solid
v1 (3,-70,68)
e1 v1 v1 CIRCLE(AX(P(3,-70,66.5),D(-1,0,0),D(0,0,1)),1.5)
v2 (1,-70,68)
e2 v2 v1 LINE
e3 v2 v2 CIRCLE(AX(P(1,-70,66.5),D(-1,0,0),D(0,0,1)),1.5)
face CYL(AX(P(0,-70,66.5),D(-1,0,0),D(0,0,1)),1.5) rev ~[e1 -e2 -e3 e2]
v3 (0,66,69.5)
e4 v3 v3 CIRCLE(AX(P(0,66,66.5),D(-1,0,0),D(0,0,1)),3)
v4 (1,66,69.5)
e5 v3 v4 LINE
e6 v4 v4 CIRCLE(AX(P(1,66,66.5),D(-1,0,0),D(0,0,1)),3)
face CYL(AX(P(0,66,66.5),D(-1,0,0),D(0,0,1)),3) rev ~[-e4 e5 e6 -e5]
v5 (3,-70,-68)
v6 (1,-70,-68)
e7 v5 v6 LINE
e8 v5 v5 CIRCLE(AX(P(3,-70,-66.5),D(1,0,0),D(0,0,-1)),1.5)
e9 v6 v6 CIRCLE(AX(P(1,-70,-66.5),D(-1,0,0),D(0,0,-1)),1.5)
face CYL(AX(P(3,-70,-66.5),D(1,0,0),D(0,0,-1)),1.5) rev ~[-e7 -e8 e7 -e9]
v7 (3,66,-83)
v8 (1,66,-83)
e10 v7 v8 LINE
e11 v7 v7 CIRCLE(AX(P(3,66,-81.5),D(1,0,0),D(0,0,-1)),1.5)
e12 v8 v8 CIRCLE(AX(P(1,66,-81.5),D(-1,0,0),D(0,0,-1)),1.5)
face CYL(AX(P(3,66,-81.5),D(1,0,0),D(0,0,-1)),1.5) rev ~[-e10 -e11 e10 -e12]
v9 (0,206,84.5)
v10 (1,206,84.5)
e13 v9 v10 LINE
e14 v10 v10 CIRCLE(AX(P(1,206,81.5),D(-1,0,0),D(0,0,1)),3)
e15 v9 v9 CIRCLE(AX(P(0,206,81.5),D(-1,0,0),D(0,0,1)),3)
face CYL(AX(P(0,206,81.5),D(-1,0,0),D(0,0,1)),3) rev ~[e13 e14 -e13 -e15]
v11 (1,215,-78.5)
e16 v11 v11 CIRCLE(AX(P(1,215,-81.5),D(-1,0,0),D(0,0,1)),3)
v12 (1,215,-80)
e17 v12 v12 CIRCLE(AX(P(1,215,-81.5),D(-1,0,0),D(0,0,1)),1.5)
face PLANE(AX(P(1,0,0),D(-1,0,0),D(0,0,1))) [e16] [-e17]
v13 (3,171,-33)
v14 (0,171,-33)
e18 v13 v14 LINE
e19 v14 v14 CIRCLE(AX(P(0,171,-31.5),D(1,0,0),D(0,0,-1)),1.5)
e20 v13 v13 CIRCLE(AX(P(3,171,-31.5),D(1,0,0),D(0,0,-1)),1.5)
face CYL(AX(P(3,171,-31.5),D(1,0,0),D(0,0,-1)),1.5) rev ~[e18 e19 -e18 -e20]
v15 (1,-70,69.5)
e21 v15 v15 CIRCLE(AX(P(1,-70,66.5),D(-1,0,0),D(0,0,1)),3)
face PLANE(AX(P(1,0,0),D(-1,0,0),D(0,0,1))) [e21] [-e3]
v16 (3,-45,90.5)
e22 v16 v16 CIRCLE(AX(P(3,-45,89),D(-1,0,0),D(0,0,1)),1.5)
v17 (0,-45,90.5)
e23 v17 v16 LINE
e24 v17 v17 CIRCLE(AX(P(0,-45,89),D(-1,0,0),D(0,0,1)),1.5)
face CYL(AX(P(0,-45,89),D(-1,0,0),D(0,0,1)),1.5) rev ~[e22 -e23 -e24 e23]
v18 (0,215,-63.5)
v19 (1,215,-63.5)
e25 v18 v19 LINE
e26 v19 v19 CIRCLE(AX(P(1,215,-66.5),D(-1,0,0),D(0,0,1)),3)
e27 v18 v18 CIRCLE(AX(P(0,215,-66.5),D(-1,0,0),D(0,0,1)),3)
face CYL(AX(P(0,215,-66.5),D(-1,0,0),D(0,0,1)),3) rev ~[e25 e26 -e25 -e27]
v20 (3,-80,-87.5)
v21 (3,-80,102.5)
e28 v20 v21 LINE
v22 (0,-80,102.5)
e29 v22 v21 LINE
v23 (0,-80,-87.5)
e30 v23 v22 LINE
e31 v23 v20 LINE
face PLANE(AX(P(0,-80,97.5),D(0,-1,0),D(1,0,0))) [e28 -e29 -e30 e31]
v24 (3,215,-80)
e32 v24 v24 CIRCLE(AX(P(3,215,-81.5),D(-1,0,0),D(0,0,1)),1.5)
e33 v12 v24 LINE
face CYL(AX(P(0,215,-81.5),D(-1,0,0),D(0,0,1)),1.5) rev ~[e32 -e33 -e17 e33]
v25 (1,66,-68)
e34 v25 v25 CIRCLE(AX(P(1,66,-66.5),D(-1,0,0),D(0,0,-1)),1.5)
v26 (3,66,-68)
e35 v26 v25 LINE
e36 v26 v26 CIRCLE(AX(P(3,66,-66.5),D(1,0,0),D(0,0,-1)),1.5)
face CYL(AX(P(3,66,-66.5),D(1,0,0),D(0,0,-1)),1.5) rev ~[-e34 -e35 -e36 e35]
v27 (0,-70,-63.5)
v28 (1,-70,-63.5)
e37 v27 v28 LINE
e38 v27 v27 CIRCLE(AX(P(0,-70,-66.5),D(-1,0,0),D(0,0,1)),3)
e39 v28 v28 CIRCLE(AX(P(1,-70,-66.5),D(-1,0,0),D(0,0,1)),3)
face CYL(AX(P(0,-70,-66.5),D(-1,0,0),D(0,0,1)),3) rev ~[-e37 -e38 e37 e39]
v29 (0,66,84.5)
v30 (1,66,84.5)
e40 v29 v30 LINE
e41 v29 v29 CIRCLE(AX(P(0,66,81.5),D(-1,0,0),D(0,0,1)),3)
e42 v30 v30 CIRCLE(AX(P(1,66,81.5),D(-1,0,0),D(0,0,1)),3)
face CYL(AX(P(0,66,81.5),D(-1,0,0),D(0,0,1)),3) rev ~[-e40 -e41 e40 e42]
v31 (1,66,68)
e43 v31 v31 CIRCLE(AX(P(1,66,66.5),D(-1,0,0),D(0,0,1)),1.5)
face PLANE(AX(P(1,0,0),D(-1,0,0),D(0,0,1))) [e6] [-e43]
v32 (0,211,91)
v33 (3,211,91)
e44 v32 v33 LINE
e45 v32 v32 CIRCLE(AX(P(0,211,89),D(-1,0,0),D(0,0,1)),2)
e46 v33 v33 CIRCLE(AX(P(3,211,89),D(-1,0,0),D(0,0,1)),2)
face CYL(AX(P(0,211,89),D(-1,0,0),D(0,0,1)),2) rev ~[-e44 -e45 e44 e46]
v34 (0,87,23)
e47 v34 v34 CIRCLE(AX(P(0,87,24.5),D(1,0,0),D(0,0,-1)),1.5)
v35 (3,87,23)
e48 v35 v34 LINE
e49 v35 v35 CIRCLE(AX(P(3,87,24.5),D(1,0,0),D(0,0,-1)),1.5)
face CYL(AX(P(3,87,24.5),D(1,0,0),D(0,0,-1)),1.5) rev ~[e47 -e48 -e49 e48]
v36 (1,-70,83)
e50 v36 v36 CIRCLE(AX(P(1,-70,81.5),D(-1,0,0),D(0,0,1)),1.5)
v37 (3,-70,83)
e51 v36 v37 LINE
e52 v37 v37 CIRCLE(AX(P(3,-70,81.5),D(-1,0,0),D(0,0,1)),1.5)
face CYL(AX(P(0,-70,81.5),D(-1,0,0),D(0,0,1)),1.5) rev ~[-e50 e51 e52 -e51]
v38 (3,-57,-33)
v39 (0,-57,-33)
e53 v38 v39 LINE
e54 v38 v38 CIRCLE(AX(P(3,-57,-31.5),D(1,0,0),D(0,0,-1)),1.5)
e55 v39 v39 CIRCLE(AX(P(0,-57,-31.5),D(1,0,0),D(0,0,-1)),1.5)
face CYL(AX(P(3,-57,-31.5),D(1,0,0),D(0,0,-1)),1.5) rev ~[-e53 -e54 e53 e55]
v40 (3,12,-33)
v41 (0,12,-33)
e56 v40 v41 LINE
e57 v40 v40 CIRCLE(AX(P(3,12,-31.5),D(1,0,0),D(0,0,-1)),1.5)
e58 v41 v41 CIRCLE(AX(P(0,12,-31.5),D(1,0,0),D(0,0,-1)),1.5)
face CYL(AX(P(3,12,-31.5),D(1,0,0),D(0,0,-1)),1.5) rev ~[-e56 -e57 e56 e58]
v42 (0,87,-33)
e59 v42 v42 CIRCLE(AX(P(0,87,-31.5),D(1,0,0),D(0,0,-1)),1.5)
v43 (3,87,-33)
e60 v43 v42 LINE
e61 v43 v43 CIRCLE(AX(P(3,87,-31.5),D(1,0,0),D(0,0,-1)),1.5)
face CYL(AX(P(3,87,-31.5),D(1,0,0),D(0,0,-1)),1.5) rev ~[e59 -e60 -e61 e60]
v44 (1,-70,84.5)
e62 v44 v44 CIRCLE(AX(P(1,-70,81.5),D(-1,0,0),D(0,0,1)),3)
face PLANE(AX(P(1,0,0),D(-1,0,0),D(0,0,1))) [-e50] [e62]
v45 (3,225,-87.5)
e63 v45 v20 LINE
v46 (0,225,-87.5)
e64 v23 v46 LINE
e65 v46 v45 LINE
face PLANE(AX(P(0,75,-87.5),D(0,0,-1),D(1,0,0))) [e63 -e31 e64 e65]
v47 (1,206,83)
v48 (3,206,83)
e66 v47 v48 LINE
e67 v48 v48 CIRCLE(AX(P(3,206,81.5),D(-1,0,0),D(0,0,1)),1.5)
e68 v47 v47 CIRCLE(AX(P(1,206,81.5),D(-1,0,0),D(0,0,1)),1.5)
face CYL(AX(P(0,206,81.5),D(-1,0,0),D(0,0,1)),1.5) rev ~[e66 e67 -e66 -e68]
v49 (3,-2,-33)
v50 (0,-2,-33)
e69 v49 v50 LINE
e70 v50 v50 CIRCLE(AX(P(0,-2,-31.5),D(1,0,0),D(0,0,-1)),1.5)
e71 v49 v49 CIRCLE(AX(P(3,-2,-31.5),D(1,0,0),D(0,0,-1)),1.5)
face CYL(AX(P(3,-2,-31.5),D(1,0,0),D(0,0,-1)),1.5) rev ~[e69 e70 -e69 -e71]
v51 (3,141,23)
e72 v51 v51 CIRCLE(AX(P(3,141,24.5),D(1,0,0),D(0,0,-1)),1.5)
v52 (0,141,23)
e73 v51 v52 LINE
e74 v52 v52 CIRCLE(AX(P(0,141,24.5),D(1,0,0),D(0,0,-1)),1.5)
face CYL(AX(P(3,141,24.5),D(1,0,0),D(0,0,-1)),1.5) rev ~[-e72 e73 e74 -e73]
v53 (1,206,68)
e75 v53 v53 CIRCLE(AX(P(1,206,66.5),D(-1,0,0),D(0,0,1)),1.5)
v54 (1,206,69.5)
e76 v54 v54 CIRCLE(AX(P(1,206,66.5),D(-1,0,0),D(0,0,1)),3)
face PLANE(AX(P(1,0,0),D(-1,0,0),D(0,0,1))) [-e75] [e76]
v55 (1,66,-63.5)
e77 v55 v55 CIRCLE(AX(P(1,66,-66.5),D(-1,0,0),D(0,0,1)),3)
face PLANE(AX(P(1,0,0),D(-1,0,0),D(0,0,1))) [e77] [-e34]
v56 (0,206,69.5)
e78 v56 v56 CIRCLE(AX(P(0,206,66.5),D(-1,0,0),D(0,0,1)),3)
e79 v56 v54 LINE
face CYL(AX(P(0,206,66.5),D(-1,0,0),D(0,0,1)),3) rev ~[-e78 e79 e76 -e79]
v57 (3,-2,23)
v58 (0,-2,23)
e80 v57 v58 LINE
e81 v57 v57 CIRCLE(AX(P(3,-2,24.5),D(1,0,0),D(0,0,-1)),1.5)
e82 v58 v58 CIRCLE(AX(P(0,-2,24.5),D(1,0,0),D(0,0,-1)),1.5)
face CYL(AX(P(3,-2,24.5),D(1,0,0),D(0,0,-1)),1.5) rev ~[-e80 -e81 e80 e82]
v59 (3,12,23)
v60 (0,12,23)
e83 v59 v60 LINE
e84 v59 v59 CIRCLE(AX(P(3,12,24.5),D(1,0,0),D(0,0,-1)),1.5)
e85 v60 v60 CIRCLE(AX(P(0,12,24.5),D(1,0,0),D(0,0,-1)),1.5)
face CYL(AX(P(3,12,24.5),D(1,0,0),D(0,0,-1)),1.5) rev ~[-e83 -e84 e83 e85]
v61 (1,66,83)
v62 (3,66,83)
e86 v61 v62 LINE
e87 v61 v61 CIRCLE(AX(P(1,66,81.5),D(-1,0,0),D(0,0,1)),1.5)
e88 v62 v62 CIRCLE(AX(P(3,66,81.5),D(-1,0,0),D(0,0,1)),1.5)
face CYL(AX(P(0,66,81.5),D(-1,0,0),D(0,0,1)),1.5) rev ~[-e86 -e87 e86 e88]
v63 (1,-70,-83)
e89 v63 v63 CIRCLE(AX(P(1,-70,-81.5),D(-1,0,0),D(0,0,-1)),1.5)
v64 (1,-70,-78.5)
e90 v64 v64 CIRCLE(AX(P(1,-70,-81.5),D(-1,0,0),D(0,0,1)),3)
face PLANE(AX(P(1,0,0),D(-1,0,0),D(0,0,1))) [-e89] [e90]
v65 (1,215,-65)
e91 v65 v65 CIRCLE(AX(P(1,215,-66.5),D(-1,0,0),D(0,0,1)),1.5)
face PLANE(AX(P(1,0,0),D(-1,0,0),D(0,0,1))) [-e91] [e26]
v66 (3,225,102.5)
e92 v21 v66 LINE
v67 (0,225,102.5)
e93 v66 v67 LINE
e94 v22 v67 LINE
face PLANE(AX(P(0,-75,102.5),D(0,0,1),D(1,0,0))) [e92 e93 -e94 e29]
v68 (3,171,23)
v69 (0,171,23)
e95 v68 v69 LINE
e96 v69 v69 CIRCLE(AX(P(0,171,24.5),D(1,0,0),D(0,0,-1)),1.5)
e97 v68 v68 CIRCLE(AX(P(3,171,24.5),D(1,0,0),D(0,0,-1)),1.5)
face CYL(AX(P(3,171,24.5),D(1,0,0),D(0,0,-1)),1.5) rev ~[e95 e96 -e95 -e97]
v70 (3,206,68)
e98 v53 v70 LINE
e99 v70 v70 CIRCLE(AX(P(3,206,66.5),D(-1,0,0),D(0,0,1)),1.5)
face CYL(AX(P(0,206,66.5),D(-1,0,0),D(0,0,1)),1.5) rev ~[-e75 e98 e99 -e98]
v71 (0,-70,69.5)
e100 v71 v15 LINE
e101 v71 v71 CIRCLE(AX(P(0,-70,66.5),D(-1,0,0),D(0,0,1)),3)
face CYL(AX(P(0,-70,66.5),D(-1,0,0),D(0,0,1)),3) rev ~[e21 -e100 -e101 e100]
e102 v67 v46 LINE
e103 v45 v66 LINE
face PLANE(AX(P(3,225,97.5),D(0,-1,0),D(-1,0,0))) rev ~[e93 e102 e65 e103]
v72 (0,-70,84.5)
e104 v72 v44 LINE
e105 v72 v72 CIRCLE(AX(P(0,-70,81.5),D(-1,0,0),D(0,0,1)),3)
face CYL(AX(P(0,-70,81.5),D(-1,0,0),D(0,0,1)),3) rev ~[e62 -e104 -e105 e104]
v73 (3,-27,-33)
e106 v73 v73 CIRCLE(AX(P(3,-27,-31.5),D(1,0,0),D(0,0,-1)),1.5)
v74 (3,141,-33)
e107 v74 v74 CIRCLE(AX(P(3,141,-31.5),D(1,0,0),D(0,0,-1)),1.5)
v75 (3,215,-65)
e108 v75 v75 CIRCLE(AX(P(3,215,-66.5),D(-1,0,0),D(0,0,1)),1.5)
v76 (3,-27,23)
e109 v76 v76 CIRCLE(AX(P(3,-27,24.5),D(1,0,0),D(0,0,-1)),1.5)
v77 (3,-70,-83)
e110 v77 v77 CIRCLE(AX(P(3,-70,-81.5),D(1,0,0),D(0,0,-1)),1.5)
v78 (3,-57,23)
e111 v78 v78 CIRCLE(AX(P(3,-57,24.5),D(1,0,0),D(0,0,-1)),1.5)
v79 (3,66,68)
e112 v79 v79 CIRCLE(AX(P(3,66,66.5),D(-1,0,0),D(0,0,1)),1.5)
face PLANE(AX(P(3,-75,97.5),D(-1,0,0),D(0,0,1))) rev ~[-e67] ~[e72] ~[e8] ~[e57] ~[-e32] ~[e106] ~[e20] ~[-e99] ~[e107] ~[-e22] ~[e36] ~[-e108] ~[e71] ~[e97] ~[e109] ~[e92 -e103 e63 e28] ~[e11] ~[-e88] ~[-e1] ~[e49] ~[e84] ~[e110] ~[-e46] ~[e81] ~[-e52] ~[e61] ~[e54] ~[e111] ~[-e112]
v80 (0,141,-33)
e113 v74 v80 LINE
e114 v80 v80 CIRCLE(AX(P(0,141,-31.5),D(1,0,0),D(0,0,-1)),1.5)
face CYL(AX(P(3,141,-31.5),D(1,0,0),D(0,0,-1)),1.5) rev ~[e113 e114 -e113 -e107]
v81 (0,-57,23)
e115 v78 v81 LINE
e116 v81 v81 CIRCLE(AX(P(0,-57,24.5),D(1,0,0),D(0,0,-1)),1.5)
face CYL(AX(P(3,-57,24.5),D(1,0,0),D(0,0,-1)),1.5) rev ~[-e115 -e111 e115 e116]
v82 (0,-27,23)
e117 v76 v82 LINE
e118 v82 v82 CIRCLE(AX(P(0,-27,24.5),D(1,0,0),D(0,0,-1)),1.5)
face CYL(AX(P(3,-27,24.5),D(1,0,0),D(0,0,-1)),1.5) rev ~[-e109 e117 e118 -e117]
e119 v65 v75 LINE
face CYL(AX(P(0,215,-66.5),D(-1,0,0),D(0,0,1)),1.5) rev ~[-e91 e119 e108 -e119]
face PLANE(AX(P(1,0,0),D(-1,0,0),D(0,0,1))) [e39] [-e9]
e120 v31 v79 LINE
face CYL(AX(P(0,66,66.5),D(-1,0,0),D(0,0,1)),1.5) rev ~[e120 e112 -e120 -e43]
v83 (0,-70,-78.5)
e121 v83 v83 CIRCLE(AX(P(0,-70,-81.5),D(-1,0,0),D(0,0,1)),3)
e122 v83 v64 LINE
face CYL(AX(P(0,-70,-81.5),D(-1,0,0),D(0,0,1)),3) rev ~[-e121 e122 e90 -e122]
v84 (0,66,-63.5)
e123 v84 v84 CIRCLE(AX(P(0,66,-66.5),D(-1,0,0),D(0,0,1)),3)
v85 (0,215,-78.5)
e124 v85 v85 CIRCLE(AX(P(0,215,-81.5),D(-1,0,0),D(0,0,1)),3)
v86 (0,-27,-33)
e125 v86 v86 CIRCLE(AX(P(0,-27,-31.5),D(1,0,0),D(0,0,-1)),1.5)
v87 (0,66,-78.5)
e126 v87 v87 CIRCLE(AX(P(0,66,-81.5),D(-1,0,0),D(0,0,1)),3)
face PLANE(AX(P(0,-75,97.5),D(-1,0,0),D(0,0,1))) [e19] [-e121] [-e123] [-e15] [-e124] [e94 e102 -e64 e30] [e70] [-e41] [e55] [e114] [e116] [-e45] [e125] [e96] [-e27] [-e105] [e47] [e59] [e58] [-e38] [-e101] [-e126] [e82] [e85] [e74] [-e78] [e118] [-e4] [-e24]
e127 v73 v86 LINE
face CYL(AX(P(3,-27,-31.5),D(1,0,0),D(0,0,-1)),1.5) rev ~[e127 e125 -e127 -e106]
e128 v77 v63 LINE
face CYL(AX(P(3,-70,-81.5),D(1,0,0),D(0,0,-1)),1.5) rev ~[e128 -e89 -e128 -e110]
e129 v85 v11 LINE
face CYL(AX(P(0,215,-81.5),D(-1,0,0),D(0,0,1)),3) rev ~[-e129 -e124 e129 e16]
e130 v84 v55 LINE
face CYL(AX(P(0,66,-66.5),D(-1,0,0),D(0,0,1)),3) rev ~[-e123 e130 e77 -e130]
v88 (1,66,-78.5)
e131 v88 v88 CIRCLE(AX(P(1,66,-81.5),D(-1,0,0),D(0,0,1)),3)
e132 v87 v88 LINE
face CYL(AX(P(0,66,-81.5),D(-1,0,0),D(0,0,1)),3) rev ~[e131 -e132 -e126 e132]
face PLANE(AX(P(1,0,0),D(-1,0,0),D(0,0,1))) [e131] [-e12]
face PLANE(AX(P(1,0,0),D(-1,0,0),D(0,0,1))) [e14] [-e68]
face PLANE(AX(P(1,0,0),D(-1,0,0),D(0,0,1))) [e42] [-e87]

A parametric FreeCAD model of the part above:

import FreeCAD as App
import Part
import Sketcher

V = App.Vector


def add_polygon(sketch, points):
    """Adds a closed chain of lines whose ends are joined by coincident constraints."""
    first, n = sketch.GeometryCount, len(points)
    for a, b in zip(points, points[1:] + points[:1]):
        sketch.addGeometry(Part.LineSegment(App.Vector(*a, 0), App.Vector(*b, 0)), False)
    for i in range(n):
        sketch.addConstraint(Sketcher.Constraint("Coincident", first + i, 2, first + (i + 1) % n, 1))

doc = App.newDocument("Part")
params = doc.addObject("Spreadsheet::Sheet", "Params")
for row, (alias, value) in enumerate([
    ("sketch1_width", "150 mm"),
    ("sketch1_height", "175 mm"),
    ("pad1_length", "3 mm"),
    ("sketch2_diameter", "3 mm"),
    ("sketch3_diameter", "3 mm"),
    ("sketch4_width", "3 mm"),
    ("sketch4_height", "150 mm"),
    ("pad2_length", "10 mm"),
    ("sketch5_width", "3 mm"),
    ("sketch5_height", "185 mm"),
    ("pad3_length", "5 mm"),
    ("sketch6_width", "3 mm"),
    ("sketch6_height", "185 mm"),
    ("pad4_length", "150 mm"),
    ("sketch7_diameter", "3 mm"),
    ("pocket3_length", "10 mm"),
    ("sketch8_diameter", "3 mm"),
    ("pocket4_length", "10 mm"),
    ("sketch9_diameter", "3 mm"),
    ("pocket5_length", "10 mm"),
    ("sketch10_diameter", "6 mm"),
    ("sketch10_diameter2", "3 mm"),
    ("pocket6_length", "1 mm"),
    ("sketch11_diameter", "3 mm"),
    ("pocket7_length", "10 mm"),
    ("sketch12_diameter", "6 mm"),
    ("sketch12_diameter2", "3 mm"),
    ("pocket8_length", "1 mm"),
    ("sketch13_diameter", "3 mm"),
    ("sketch14_diameter", "6 mm"),
    ("sketch14_diameter2", "3 mm"),
    ("pocket10_length", "1 mm"),
    ("sketch15_width", "3 mm"),
    ("sketch15_height", "300 mm"),
    ("pad5_length", "5 mm"),
    ("sketch16_diameter", "3 mm"),
    ("sketch16_diameter2", "4 mm"),
    ("pocket11_length", "5 mm"),
    ("sketch17_width", "3 mm"),
    ("sketch17_height", "5 mm"),
    ("pad6_length", "5 mm"),
], start=1):
    params.set(f"A{row}", alias)
    params.set(f"B{row}", "=" + value)
    params.setAlias(f"B{row}", alias)

body = doc.addObject("PartDesign::Body", "Body")

# Sketch on YZ plane
sketch1 = doc.addObject("Sketcher::SketchObject", "Sketch")
body.addObject(sketch1)
sketch1.AttachmentSupport = (doc.YZ_Plane, [""])
sketch1.MapMode = "FlatFace"
add_polygon(sketch1, [(75, -87.5), (75, 87.5), (-75, 87.5), (-75, -87.5)])  # lines 0-3
sketch1.addConstraint(Sketcher.Constraint("Vertical", 0))
sketch1.addConstraint(Sketcher.Constraint("Horizontal", 1))
sketch1.addConstraint(Sketcher.Constraint("Vertical", 2))
sketch1.addConstraint(Sketcher.Constraint("Horizontal", 3))
sketch1.addConstraint(Sketcher.Constraint("Symmetric", 0, 2, 2, 2, -1, 1))
sketch1.addConstraint(Sketcher.Constraint("DistanceX", 1, 2, 1, 1, 150.0))
sketch1.addConstraint(Sketcher.Constraint("DistanceY", 0, 1, 0, 2, 175.0))
sketch1.setExpression("Constraints[9]", "Params.sketch1_width")
sketch1.setExpression("Constraints[10]", "Params.sketch1_height")
pad1 = doc.addObject("PartDesign::Pad", "Pad")
body.addObject(pad1)
pad1.Profile = sketch1
pad1.setExpression("Length", "Params.pad1_length")

# Sketch on YZ plane
sketch2 = doc.addObject("Sketcher::SketchObject", "Sketch001")
body.addObject(sketch2)
sketch2.AttachmentSupport = (doc.YZ_Plane, [""])
sketch2.MapMode = "FlatFace"
sketch2.AttachmentOffset = App.Placement(V(0, 0, 3), App.Rotation())
sketch2.addGeometry(Part.Circle(V(66, -81.5, 0), V(0, 0, 1), 1.5), False)
sketch2.addGeometry(Part.Circle(V(66, -66.5, 0), V(0, 0, 1), 1.5), False)
sketch2.addGeometry(Part.Circle(V(-70, -66.5, 0), V(0, 0, 1), 1.5), False)
sketch2.addGeometry(Part.Circle(V(-70, -81.5, 0), V(0, 0, 1), 1.5), False)
sketch2.addConstraint(Sketcher.Constraint("Equal", 0, 1))
sketch2.addConstraint(Sketcher.Constraint("Equal", 1, 2))
sketch2.addConstraint(Sketcher.Constraint("Equal", 2, 3))
sketch2.addConstraint(Sketcher.Constraint("Horizontal", 1, 3, 2, 3))
sketch2.addConstraint(Sketcher.Constraint("Horizontal", 0, 3, 3, 3))
sketch2.addConstraint(Sketcher.Constraint("Vertical", 0, 3, 1, 3))
sketch2.addConstraint(Sketcher.Constraint("Vertical", 2, 3, 3, 3))
sketch2.addConstraint(Sketcher.Constraint("Diameter", 0, 3.0))
sketch2.addConstraint(Sketcher.Constraint("DistanceY", 0, 3, 1, 3, 15.0))
sketch2.addConstraint(Sketcher.Constraint("DistanceX", -1, 1, 0, 3, 66.0))
sketch2.addConstraint(Sketcher.Constraint("DistanceX", 2, 3, -1, 1, 70.0))
sketch2.addConstraint(Sketcher.Constraint("DistanceY", 0, 3, -1, 1, 81.5))
sketch2.setExpression("Constraints[7]", "Params.sketch2_diameter")
pocket1 = doc.addObject("PartDesign::Pocket", "Pocket")
body.addObject(pocket1)
pocket1.Profile = sketch2
pocket1.Type = "ThroughAll"

# Sketch on YZ plane
sketch3 = doc.addObject("Sketcher::SketchObject", "Sketch002")
body.addObject(sketch3)
sketch3.AttachmentSupport = (doc.YZ_Plane, [""])
sketch3.MapMode = "FlatFace"
sketch3.AttachmentOffset = App.Placement(V(0, 0, 3), App.Rotation())
sketch3.addGeometry(Part.Circle(V(-57, 24.5, 0), V(0, 0, 1), 1.5), False)
sketch3.addGeometry(Part.Circle(V(-57, -31.5, 0), V(0, 0, 1), 1.5), False)
sketch3.addGeometry(Part.Circle(V(-27, 24.5, 0), V(0, 0, 1), 1.5), False)
sketch3.addGeometry(Part.Circle(V(-27, -31.5, 0), V(0, 0, 1), 1.5), False)
sketch3.addConstraint(Sketcher.Constraint("Equal", 0, 1))
sketch3.addConstraint(Sketcher.Constraint("Equal", 1, 2))
sketch3.addConstraint(Sketcher.Constraint("Equal", 2, 3))
sketch3.addConstraint(Sketcher.Constraint("Horizontal", 0, 3, 2, 3))
sketch3.addConstraint(Sketcher.Constraint("Horizontal", 1, 3, 3, 3))
sketch3.addConstraint(Sketcher.Constraint("Vertical", 0, 3, 1, 3))
sketch3.addConstraint(Sketcher.Constraint("Vertical", 2, 3, 3, 3))
sketch3.addConstraint(Sketcher.Constraint("Diameter", 0, 3.0))
sketch3.addConstraint(Sketcher.Constraint("DistanceY", 1, 3, 0, 3, 56.0))
sketch3.addConstraint(Sketcher.Constraint("DistanceX", 0, 3, 2, 3, 30.0))
sketch3.addConstraint(Sketcher.Constraint("DistanceX", 0, 3, -1, 1, 57.0))
sketch3.addConstraint(Sketcher.Constraint("DistanceY", -1, 1, 0, 3, 24.5))
sketch3.setExpression("Constraints[7]", "Params.sketch3_diameter")
pocket2 = doc.addObject("PartDesign::Pocket", "Pocket001")
body.addObject(pocket2)
pocket2.Profile = sketch3
pocket2.Type = "ThroughAll"

# Sketch on XY plane
sketch4 = doc.addObject("Sketcher::SketchObject", "Sketch003")
body.addObject(sketch4)
sketch4.AttachmentSupport = (doc.XY_Plane, [""])
sketch4.MapMode = "FlatFace"
sketch4.AttachmentOffset = App.Placement(V(0, 0, 87.5), App.Rotation())
add_polygon(sketch4, [(3, 75), (0, 75), (0, -75), (3, -75)])  # lines 0-3
sketch4.addConstraint(Sketcher.Constraint("Horizontal", 0))
sketch4.addConstraint(Sketcher.Constraint("Vertical", 1))
sketch4.addConstraint(Sketcher.Constraint("Horizontal", 2))
sketch4.addConstraint(Sketcher.Constraint("Vertical", 3))
sketch4.addConstraint(Sketcher.Constraint("Symmetric", 0, 2, 1, 2, -1, 1))
sketch4.addConstraint(Sketcher.Constraint("DistanceX", 0, 2, 0, 1, 3.0))
sketch4.addConstraint(Sketcher.Constraint("DistanceY", 1, 2, 1, 1, 150.0))
sketch4.setExpression("Constraints[9]", "Params.sketch4_width")
sketch4.setExpression("Constraints[10]", "Params.sketch4_height")
pad2 = doc.addObject("PartDesign::Pad", "Pad001")
body.addObject(pad2)
pad2.Profile = sketch4
pad2.setExpression("Length", "Params.pad2_length")

# Sketch on XZ plane
sketch5 = doc.addObject("Sketcher::SketchObject", "Sketch004")
body.addObject(sketch5)
sketch5.AttachmentSupport = (doc.XZ_Plane, [""])
sketch5.MapMode = "FlatFace"
sketch5.AttachmentOffset = App.Placement(V(0, 0, 75), App.Rotation())
add_polygon(sketch5, [(0, -87.5), (3, -87.5), (3, 97.5), (0, 97.5)])  # lines 0-3
sketch5.addConstraint(Sketcher.Constraint("Horizontal", 0))
sketch5.addConstraint(Sketcher.Constraint("Vertical", 1))
sketch5.addConstraint(Sketcher.Constraint("Horizontal", 2))
sketch5.addConstraint(Sketcher.Constraint("Vertical", 3))
sketch5.addConstraint(Sketcher.Constraint("PointOnObject", 2, 2, -2))
sketch5.addConstraint(Sketcher.Constraint("DistanceX", 0, 1, 0, 2, 3.0))
sketch5.addConstraint(Sketcher.Constraint("DistanceY", 1, 1, 1, 2, 185.0))
sketch5.addConstraint(Sketcher.Constraint("DistanceY", 0, 2, -1, 1, 87.5))
sketch5.setExpression("Constraints[9]", "Params.sketch5_width")
sketch5.setExpression("Constraints[10]", "Params.sketch5_height")
pad3 = doc.addObject("PartDesign::Pad", "Pad002")
body.addObject(pad3)
pad3.Profile = sketch5
pad3.setExpression("Length", "Params.pad3_length")

# Sketch on XZ plane
sketch6 = doc.addObject("Sketcher::SketchObject", "Sketch005")
body.addObject(sketch6)
sketch6.AttachmentSupport = (doc.XZ_Plane, [""])
sketch6.MapMode = "FlatFace"
sketch6.AttachmentOffset = App.Placement(V(0, 0, -75), App.Rotation())
add_polygon(sketch6, [(3, -87.5), (0, -87.5), (0, 97.5), (3, 97.5)])  # lines 0-3
sketch6.addConstraint(Sketcher.Constraint("Horizontal", 0))
sketch6.addConstraint(Sketcher.Constraint("Vertical", 1))
sketch6.addConstraint(Sketcher.Constraint("Horizontal", 2))
sketch6.addConstraint(Sketcher.Constraint("Vertical", 3))
sketch6.addConstraint(Sketcher.Constraint("PointOnObject", 0, 2, -2))
sketch6.addConstraint(Sketcher.Constraint("DistanceX", 0, 2, 0, 1, 3.0))
sketch6.addConstraint(Sketcher.Constraint("DistanceY", 1, 1, 1, 2, 185.0))
sketch6.addConstraint(Sketcher.Constraint("DistanceY", 0, 2, -1, 1, 87.5))
sketch6.setExpression("Constraints[9]", "Params.sketch6_width")
sketch6.setExpression("Constraints[10]", "Params.sketch6_height")
pad4 = doc.addObject("PartDesign::Pad", "Pad003")
body.addObject(pad4)
pad4.Profile = sketch6
pad4.setExpression("Length", "Params.pad4_length")
pad4.Reversed = True

# Sketch on YZ plane
sketch7 = doc.addObject("Sketcher::SketchObject", "Sketch006")
body.addObject(sketch7)
sketch7.AttachmentSupport = (doc.YZ_Plane, [""])
sketch7.MapMode = "FlatFace"
sketch7.AttachmentOffset = App.Placement(V(0, 0, 3), App.Rotation())
sketch7.addGeometry(Part.Circle(V(87, 24.5, 0), V(0, 0, 1), 1.5), False)
sketch7.addGeometry(Part.Circle(V(87, -31.5, 0), V(0, 0, 1), 1.5), False)
sketch7.addGeometry(Part.Circle(V(12, -31.5, 0), V(0, 0, 1), 1.5), False)
sketch7.addGeometry(Part.Circle(V(12, 24.5, 0), V(0, 0, 1), 1.5), False)
sketch7.addGeometry(Part.Circle(V(141, -31.5, 0), V(0, 0, 1), 1.5), False)
sketch7.addGeometry(Part.Circle(V(141, 24.5, 0), V(0, 0, 1), 1.5), False)
sketch7.addGeometry(Part.Circle(V(171, 24.5, 0), V(0, 0, 1), 1.5), False)
sketch7.addGeometry(Part.Circle(V(171, -31.5, 0), V(0, 0, 1), 1.5), False)
sketch7.addConstraint(Sketcher.Constraint("Equal", 0, 1))
sketch7.addConstraint(Sketcher.Constraint("Equal", 1, 2))
sketch7.addConstraint(Sketcher.Constraint("Equal", 2, 3))
sketch7.addConstraint(Sketcher.Constraint("Equal", 3, 4))
sketch7.addConstraint(Sketcher.Constraint("Equal", 4, 5))
sketch7.addConstraint(Sketcher.Constraint("Equal", 5, 6))
sketch7.addConstraint(Sketcher.Constraint("Equal", 6, 7))
sketch7.addConstraint(Sketcher.Constraint("Horizontal", 1, 3, 2, 3))
sketch7.addConstraint(Sketcher.Constraint("Horizontal", 0, 3, 3, 3))
sketch7.addConstraint(Sketcher.Constraint("Horizontal", 2, 3, 4, 3))
sketch7.addConstraint(Sketcher.Constraint("Horizontal", 3, 3, 5, 3))
sketch7.addConstraint(Sketcher.Constraint("Horizontal", 5, 3, 6, 3))
sketch7.addConstraint(Sketcher.Constraint("Horizontal", 4, 3, 7, 3))
sketch7.addConstraint(Sketcher.Constraint("Vertical", 0, 3, 1, 3))
sketch7.addConstraint(Sketcher.Constraint("Vertical", 2, 3, 3, 3))
sketch7.addConstraint(Sketcher.Constraint("Vertical", 4, 3, 5, 3))
sketch7.addConstraint(Sketcher.Constraint("Vertical", 6, 3, 7, 3))
sketch7.addConstraint(Sketcher.Constraint("Diameter", 0, 3.0))
sketch7.addConstraint(Sketcher.Constraint("DistanceX", 2, 3, 1, 3, 75.0))
sketch7.addConstraint(Sketcher.Constraint("DistanceX", 2, 3, 4, 3, 129.0))
sketch7.addConstraint(Sketcher.Constraint("DistanceX", 5, 3, 6, 3, 30.0))
sketch7.addConstraint(Sketcher.Constraint("DistanceX", -1, 1, 0, 3, 87.0))
sketch7.addConstraint(Sketcher.Constraint("DistanceY", 1, 3, 0, 3, 56.0))
sketch7.addConstraint(Sketcher.Constraint("DistanceY", -1, 1, 0, 3, 24.5))
sketch7.setExpression("Constraints[17]", "Params.sketch7_diameter")
pocket3 = doc.addObject("PartDesign::Pocket", "Pocket002")
body.addObject(pocket3)
pocket3.Profile = sketch7
pocket3.setExpression("Length", "Params.pocket3_length")

# Sketch on YZ plane
sketch8 = doc.addObject("Sketcher::SketchObject", "Sketch007")
body.addObject(sketch8)
sketch8.AttachmentSupport = (doc.YZ_Plane, [""])
sketch8.MapMode = "FlatFace"
sketch8.addGeometry(Part.Circle(V(66, 81.5, 0), V(0, 0, 1), 1.5), False)
sketch8.addGeometry(Part.Circle(V(66, 66.5, 0), V(0, 0, 1), 1.5), False)
sketch8.addGeometry(Part.Circle(V(-70, 81.5, 0), V(0, 0, 1), 1.5), False)
sketch8.addGeometry(Part.Circle(V(-70, 66.5, 0), V(0, 0, 1), 1.5), False)
sketch8.addConstraint(Sketcher.Constraint("Equal", 0, 1))
sketch8.addConstraint(Sketcher.Constraint("Equal", 1, 2))
sketch8.addConstraint(Sketcher.Constraint("Equal", 2, 3))
sketch8.addConstraint(Sketcher.Constraint("Horizontal", 0, 3, 2, 3))
sketch8.addConstraint(Sketcher.Constraint("Horizontal", 1, 3, 3, 3))
sketch8.addConstraint(Sketcher.Constraint("Vertical", 0, 3, 1, 3))
sketch8.addConstraint(Sketcher.Constraint("Vertical", 2, 3, 3, 3))
sketch8.addConstraint(Sketcher.Constraint("Diameter", 0, 3.0))
sketch8.addConstraint(Sketcher.Constraint("DistanceY", 1, 3, 0, 3, 15.0))
sketch8.addConstraint(Sketcher.Constraint("DistanceX", -1, 1, 0, 3, 66.0))
sketch8.addConstraint(Sketcher.Constraint("DistanceX", 2, 3, -1, 1, 70.0))
sketch8.addConstraint(Sketcher.Constraint("DistanceY", -1, 1, 0, 3, 81.5))
sketch8.setExpression("Constraints[7]", "Params.sketch8_diameter")
pocket4 = doc.addObject("PartDesign::Pocket", "Pocket003")
body.addObject(pocket4)
pocket4.Profile = sketch8
pocket4.setExpression("Length", "Params.pocket4_length")
pocket4.Reversed = True

# Sketch on YZ plane
sketch9 = doc.addObject("Sketcher::SketchObject", "Sketch008")
body.addObject(sketch9)
sketch9.AttachmentSupport = (doc.YZ_Plane, [""])
sketch9.MapMode = "FlatFace"
sketch9.AttachmentOffset = App.Placement(V(0, 0, 3), App.Rotation())
sketch9.addGeometry(Part.Circle(V(-2, 24.5, 0), V(0, 0, 1), 1.5), False)
sketch9.addGeometry(Part.Circle(V(-2, -31.5, 0), V(0, 0, 1), 1.5), False)
sketch9.addConstraint(Sketcher.Constraint("Equal", 0, 1))
sketch9.addConstraint(Sketcher.Constraint("Vertical", 0, 3, 1, 3))
sketch9.addConstraint(Sketcher.Constraint("Diameter", 0, 3.0))
sketch9.addConstraint(Sketcher.Constraint("DistanceX", 0, 3, -1, 1, 2.0))
sketch9.addConstraint(Sketcher.Constraint("DistanceY", 1, 3, 0, 3, 56.0))
sketch9.addConstraint(Sketcher.Constraint("DistanceY", -1, 1, 0, 3, 24.5))
sketch9.setExpression("Constraints[2]", "Params.sketch9_diameter")
pocket5 = doc.addObject("PartDesign::Pocket", "Pocket004")
body.addObject(pocket5)
pocket5.Profile = sketch9
pocket5.setExpression("Length", "Params.pocket5_length")

# Sketch on YZ plane
sketch10 = doc.addObject("Sketcher::SketchObject", "Sketch009")
body.addObject(sketch10)
sketch10.AttachmentSupport = (doc.YZ_Plane, [""])
sketch10.MapMode = "FlatFace"
sketch10.addGeometry(Part.Circle(V(66, -81.5, 0), V(0, 0, 1), 3), False)
sketch10.addGeometry(Part.Circle(V(66, -81.5, 0), V(0, 0, 1), 1.5), False)
sketch10.addGeometry(Part.Circle(V(66, -66.5, 0), V(0, 0, 1), 3), False)
sketch10.addGeometry(Part.Circle(V(66, -66.5, 0), V(0, 0, 1), 1.5), False)
sketch10.addGeometry(Part.Circle(V(66, 66.5, 0), V(0, 0, 1), 3), False)
sketch10.addGeometry(Part.Circle(V(66, 66.5, 0), V(0, 0, 1), 1.5), False)
sketch10.addGeometry(Part.Circle(V(66, 81.5, 0), V(0, 0, 1), 3), False)
sketch10.addGeometry(Part.Circle(V(66, 81.5, 0), V(0, 0, 1), 1.5), False)
sketch10.addGeometry(Part.Circle(V(-70, -81.5, 0), V(0, 0, 1), 3), False)
sketch10.addGeometry(Part.Circle(V(-70, -81.5, 0), V(0, 0, 1), 1.5), False)
sketch10.addGeometry(Part.Circle(V(-70, -66.5, 0), V(0, 0, 1), 3), False)
sketch10.addGeometry(Part.Circle(V(-70, -66.5, 0), V(0, 0, 1), 1.5), False)
sketch10.addGeometry(Part.Circle(V(-70, 66.5, 0), V(0, 0, 1), 3), False)
sketch10.addGeometry(Part.Circle(V(-70, 66.5, 0), V(0, 0, 1), 1.5), False)
sketch10.addGeometry(Part.Circle(V(-70, 81.5, 0), V(0, 0, 1), 3), False)
sketch10.addGeometry(Part.Circle(V(-70, 81.5, 0), V(0, 0, 1), 1.5), False)
sketch10.addConstraint(Sketcher.Constraint("Coincident", 1, 3, 0, 3))
sketch10.addConstraint(Sketcher.Constraint("Coincident", 3, 3, 2, 3))
sketch10.addConstraint(Sketcher.Constraint("Coincident", 5, 3, 4, 3))
sketch10.addConstraint(Sketcher.Constraint("Coincident", 7, 3, 6, 3))
sketch10.addConstraint(Sketcher.Constraint("Coincident", 9, 3, 8, 3))
sketch10.addConstraint(Sketcher.Constraint("Coincident", 11, 3, 10, 3))
sketch10.addConstraint(Sketcher.Constraint("Coincident", 13, 3, 12, 3))
sketch10.addConstraint(Sketcher.Constraint("Coincident", 15, 3, 14, 3))
sketch10.addConstraint(Sketcher.Constraint("Equal", 0, 2))
sketch10.addConstraint(Sketcher.Constraint("Equal", 1, 3))
sketch10.addConstraint(Sketcher.Constraint("Equal", 2, 4))
sketch10.addConstraint(Sketcher.Constraint("Equal", 3, 5))
sketch10.addConstraint(Sketcher.Constraint("Equal", 4, 6))
sketch10.addConstraint(Sketcher.Constraint("Equal", 5, 7))
sketch10.addConstraint(Sketcher.Constraint("Equal", 6, 8))
sketch10.addConstraint(Sketcher.Constraint("Equal", 7, 9))
sketch10.addConstraint(Sketcher.Constraint("Equal", 8, 10))
sketch10.addConstraint(Sketcher.Constraint("Equal", 9, 11))
sketch10.addConstraint(Sketcher.Constraint("Equal", 10, 12))
sketch10.addConstraint(Sketcher.Constraint("Equal", 11, 13))
sketch10.addConstraint(Sketcher.Constraint("Equal", 12, 14))
sketch10.addConstraint(Sketcher.Constraint("Equal", 13, 15))
sketch10.addConstraint(Sketcher.Constraint("Symmetric", 2, 3, 4, 3, -1))
sketch10.addConstraint(Sketcher.Constraint("Symmetric", 0, 3, 6, 3, -1))
sketch10.addConstraint(Sketcher.Constraint("Symmetric", 10, 3, 12, 3, -1))
sketch10.addConstraint(Sketcher.Constraint("Symmetric", 8, 3, 14, 3, -1))
sketch10.addConstraint(Sketcher.Constraint("Horizontal", 1, 3, 8, 3))
sketch10.addConstraint(Sketcher.Constraint("Horizontal", 3, 3, 10, 3))
sketch10.addConstraint(Sketcher.Constraint("Vertical", 1, 3, 2, 3))
sketch10.addConstraint(Sketcher.Constraint("Vertical", 9, 3, 10, 3))
sketch10.addConstraint(Sketcher.Constraint("Diameter", 0, 6.0))
sketch10.addConstraint(Sketcher.Constraint("Diameter", 1, 3.0))
sketch10.addConstraint(Sketcher.Constraint("DistanceX", -1, 1, 0, 3, 66.0))
sketch10.addConstraint(Sketcher.Constraint("DistanceX", 8, 3, -1, 1, 70.0))
sketch10.addConstraint(Sketcher.Constraint("DistanceY", 0, 3, 2, 3, 15.0))
sketch10.addConstraint(Sketcher.Constraint("DistanceY", 2, 3, 4, 3, 133.0))
sketch10.setExpression("Constraints[30]", "Params.sketch10_diameter")
sketch10.setExpression("Constraints[31]", "Params.sketch10_diameter2")
pocket6 = doc.addObject("PartDesign::Pocket", "Pocket005")
body.addObject(pocket6)
pocket6.Profile = sketch10
pocket6.setExpression("Length", "Params.pocket6_length")
pocket6.Reversed = True

# Sketch on YZ plane
sketch11 = doc.addObject("Sketcher::SketchObject", "Sketch010")
body.addObject(sketch11)
sketch11.AttachmentSupport = (doc.YZ_Plane, [""])
sketch11.MapMode = "FlatFace"
sketch11.addGeometry(Part.Circle(V(206, 66.5, 0), V(0, 0, 1), 1.5), False)
sketch11.addGeometry(Part.Circle(V(206, 81.5, 0), V(0, 0, 1), 1.5), False)
sketch11.addConstraint(Sketcher.Constraint("Equal", 0, 1))
sketch11.addConstraint(Sketcher.Constraint("Vertical", 0, 3, 1, 3))
sketch11.addConstraint(Sketcher.Constraint("Diameter", 0, 3.0))
sketch11.addConstraint(Sketcher.Constraint("DistanceY", 0, 3, 1, 3, 15.0))
sketch11.addConstraint(Sketcher.Constraint("DistanceX", -1, 1, 0, 3, 206.0))
sketch11.addConstraint(Sketcher.Constraint("DistanceY", -1, 1, 0, 3, 66.5))
sketch11.setExpression("Constraints[2]", "Params.sketch11_diameter")
pocket7 = doc.addObject("PartDesign::Pocket", "Pocket006")
body.addObject(pocket7)
pocket7.Profile = sketch11
pocket7.setExpression("Length", "Params.pocket7_length")
pocket7.Reversed = True

# Sketch on YZ plane
sketch12 = doc.addObject("Sketcher::SketchObject", "Sketch011")
body.addObject(sketch12)
sketch12.AttachmentSupport = (doc.YZ_Plane, [""])
sketch12.MapMode = "FlatFace"
sketch12.addGeometry(Part.Circle(V(206, 66.5, 0), V(0, 0, 1), 3), False)
sketch12.addGeometry(Part.Circle(V(206, 66.5, 0), V(0, 0, 1), 1.5), False)
sketch12.addGeometry(Part.Circle(V(206, 81.5, 0), V(0, 0, 1), 3), False)
sketch12.addGeometry(Part.Circle(V(206, 81.5, 0), V(0, 0, 1), 1.5), False)
sketch12.addConstraint(Sketcher.Constraint("Coincident", 1, 3, 0, 3))
sketch12.addConstraint(Sketcher.Constraint("Coincident", 3, 3, 2, 3))
sketch12.addConstraint(Sketcher.Constraint("Equal", 0, 2))
sketch12.addConstraint(Sketcher.Constraint("Equal", 1, 3))
sketch12.addConstraint(Sketcher.Constraint("Vertical", 1, 3, 2, 3))
sketch12.addConstraint(Sketcher.Constraint("Diameter", 0, 6.0))
sketch12.addConstraint(Sketcher.Constraint("Diameter", 1, 3.0))
sketch12.addConstraint(Sketcher.Constraint("DistanceX", -1, 1, 0, 3, 206.0))
sketch12.addConstraint(Sketcher.Constraint("DistanceY", 0, 3, 2, 3, 15.0))
sketch12.addConstraint(Sketcher.Constraint("DistanceY", -1, 1, 0, 3, 66.5))
sketch12.setExpression("Constraints[5]", "Params.sketch12_diameter")
sketch12.setExpression("Constraints[6]", "Params.sketch12_diameter2")
pocket8 = doc.addObject("PartDesign::Pocket", "Pocket007")
body.addObject(pocket8)
pocket8.Profile = sketch12
pocket8.setExpression("Length", "Params.pocket8_length")
pocket8.Reversed = True

# Sketch on YZ plane
sketch13 = doc.addObject("Sketcher::SketchObject", "Sketch012")
body.addObject(sketch13)
sketch13.AttachmentSupport = (doc.YZ_Plane, [""])
sketch13.MapMode = "FlatFace"
sketch13.addGeometry(Part.Circle(V(215, -81.5, 0), V(0, 0, 1), 1.5), False)
sketch13.addGeometry(Part.Circle(V(215, -66.5, 0), V(0, 0, 1), 1.5), False)
sketch13.addConstraint(Sketcher.Constraint("Equal", 0, 1))
sketch13.addConstraint(Sketcher.Constraint("Vertical", 0, 3, 1, 3))
sketch13.addConstraint(Sketcher.Constraint("Diameter", 0, 3.0))
sketch13.addConstraint(Sketcher.Constraint("DistanceY", 0, 3, 1, 3, 15.0))
sketch13.addConstraint(Sketcher.Constraint("DistanceX", -1, 1, 0, 3, 215.0))
sketch13.addConstraint(Sketcher.Constraint("DistanceY", 0, 3, -1, 1, 81.5))
sketch13.setExpression("Constraints[2]", "Params.sketch13_diameter")
pocket9 = doc.addObject("PartDesign::Pocket", "Pocket008")
body.addObject(pocket9)
pocket9.Profile = sketch13
pocket9.Type = "ThroughAll"
pocket9.Reversed = True

# Sketch on YZ plane
sketch14 = doc.addObject("Sketcher::SketchObject", "Sketch013")
body.addObject(sketch14)
sketch14.AttachmentSupport = (doc.YZ_Plane, [""])
sketch14.MapMode = "FlatFace"
sketch14.addGeometry(Part.Circle(V(215, -81.5, 0), V(0, 0, 1), 3), False)
sketch14.addGeometry(Part.Circle(V(215, -81.5, 0), V(0, 0, 1), 1.5), False)
sketch14.addGeometry(Part.Circle(V(215, -66.5, 0), V(0, 0, 1), 3), False)
sketch14.addGeometry(Part.Circle(V(215, -66.5, 0), V(0, 0, 1), 1.5), False)
sketch14.addConstraint(Sketcher.Constraint("Coincident", 1, 3, 0, 3))
sketch14.addConstraint(Sketcher.Constraint("Coincident", 3, 3, 2, 3))
sketch14.addConstraint(Sketcher.Constraint("Equal", 0, 2))
sketch14.addConstraint(Sketcher.Constraint("Equal", 1, 3))
sketch14.addConstraint(Sketcher.Constraint("Vertical", 1, 3, 2, 3))
sketch14.addConstraint(Sketcher.Constraint("Diameter", 0, 6.0))
sketch14.addConstraint(Sketcher.Constraint("Diameter", 1, 3.0))
sketch14.addConstraint(Sketcher.Constraint("DistanceX", -1, 1, 0, 3, 215.0))
sketch14.addConstraint(Sketcher.Constraint("DistanceY", 0, 3, 2, 3, 15.0))
sketch14.addConstraint(Sketcher.Constraint("DistanceY", 0, 3, -1, 1, 81.5))
sketch14.setExpression("Constraints[5]", "Params.sketch14_diameter")
sketch14.setExpression("Constraints[6]", "Params.sketch14_diameter2")
pocket10 = doc.addObject("PartDesign::Pocket", "Pocket009")
body.addObject(pocket10)
pocket10.Profile = sketch14
pocket10.setExpression("Length", "Params.pocket10_length")
pocket10.Reversed = True

# Sketch on XY plane
sketch15 = doc.addObject("Sketcher::SketchObject", "Sketch014")
body.addObject(sketch15)
sketch15.AttachmentSupport = (doc.XY_Plane, [""])
sketch15.MapMode = "FlatFace"
sketch15.AttachmentOffset = App.Placement(V(0, 0, 97.5), App.Rotation())
add_polygon(sketch15, [(0, -75), (3, -75), (3, 225), (0, 225)])  # lines 0-3
sketch15.addConstraint(Sketcher.Constraint("Horizontal", 0))
sketch15.addConstraint(Sketcher.Constraint("Vertical", 1))
sketch15.addConstraint(Sketcher.Constraint("Horizontal", 2))
sketch15.addConstraint(Sketcher.Constraint("Vertical", 3))
sketch15.addConstraint(Sketcher.Constraint("PointOnObject", 2, 2, -2))
sketch15.addConstraint(Sketcher.Constraint("DistanceX", 0, 1, 0, 2, 3.0))
sketch15.addConstraint(Sketcher.Constraint("DistanceY", 1, 1, 1, 2, 300.0))
sketch15.addConstraint(Sketcher.Constraint("DistanceY", 0, 2, -1, 1, 75.0))
sketch15.setExpression("Constraints[9]", "Params.sketch15_width")
sketch15.setExpression("Constraints[10]", "Params.sketch15_height")
pad5 = doc.addObject("PartDesign::Pad", "Pad004")
body.addObject(pad5)
pad5.Profile = sketch15
pad5.setExpression("Length", "Params.pad5_length")

# Sketch on YZ plane
sketch16 = doc.addObject("Sketcher::SketchObject", "Sketch015")
body.addObject(sketch16)
sketch16.AttachmentSupport = (doc.YZ_Plane, [""])
sketch16.MapMode = "FlatFace"
sketch16.addGeometry(Part.Circle(V(-45, 89, 0), V(0, 0, 1), 1.5), False)
sketch16.addGeometry(Part.Circle(V(211, 89, 0), V(0, 0, 1), 2), False)
sketch16.addConstraint(Sketcher.Constraint("Horizontal", 0, 3, 1, 3))
sketch16.addConstraint(Sketcher.Constraint("Diameter", 0, 3.0))
sketch16.addConstraint(Sketcher.Constraint("Diameter", 1, 4.0))
sketch16.addConstraint(Sketcher.Constraint("DistanceX", 0, 3, -1, 1, 45.0))
sketch16.addConstraint(Sketcher.Constraint("DistanceY", -1, 1, 0, 3, 89.0))
sketch16.addConstraint(Sketcher.Constraint("DistanceX", -1, 1, 1, 3, 211.0))
sketch16.setExpression("Constraints[1]", "Params.sketch16_diameter")
sketch16.setExpression("Constraints[2]", "Params.sketch16_diameter2")
pocket11 = doc.addObject("PartDesign::Pocket", "Pocket010")
body.addObject(pocket11)
pocket11.Profile = sketch16
pocket11.setExpression("Length", "Params.pocket11_length")
pocket11.Reversed = True

# Sketch on XZ plane
sketch17 = doc.addObject("Sketcher::SketchObject", "Sketch016")
body.addObject(sketch17)
sketch17.AttachmentSupport = (doc.XZ_Plane, [""])
sketch17.MapMode = "FlatFace"
sketch17.AttachmentOffset = App.Placement(V(0, 0, 75), App.Rotation())
add_polygon(sketch17, [(0, 97.5), (3, 97.5), (3, 102.5), (0, 102.5)])  # lines 0-3
sketch17.addConstraint(Sketcher.Constraint("Horizontal", 0))
sketch17.addConstraint(Sketcher.Constraint("Vertical", 1))
sketch17.addConstraint(Sketcher.Constraint("Horizontal", 2))
sketch17.addConstraint(Sketcher.Constraint("Vertical", 3))
sketch17.addConstraint(Sketcher.Constraint("PointOnObject", 2, 2, -2))
sketch17.addConstraint(Sketcher.Constraint("DistanceX", 0, 1, 0, 2, 3.0))
sketch17.addConstraint(Sketcher.Constraint("DistanceY", 1, 1, 1, 2, 5.0))
sketch17.addConstraint(Sketcher.Constraint("DistanceY", -1, 1, 0, 2, 97.5))
sketch17.setExpression("Constraints[9]", "Params.sketch17_width")
sketch17.setExpression("Constraints[10]", "Params.sketch17_height")
pad6 = doc.addObject("PartDesign::Pad", "Pad005")
body.addObject(pad6)
pad6.Profile = sketch17
pad6.setExpression("Length", "Params.pad6_length")

doc.recompute()
